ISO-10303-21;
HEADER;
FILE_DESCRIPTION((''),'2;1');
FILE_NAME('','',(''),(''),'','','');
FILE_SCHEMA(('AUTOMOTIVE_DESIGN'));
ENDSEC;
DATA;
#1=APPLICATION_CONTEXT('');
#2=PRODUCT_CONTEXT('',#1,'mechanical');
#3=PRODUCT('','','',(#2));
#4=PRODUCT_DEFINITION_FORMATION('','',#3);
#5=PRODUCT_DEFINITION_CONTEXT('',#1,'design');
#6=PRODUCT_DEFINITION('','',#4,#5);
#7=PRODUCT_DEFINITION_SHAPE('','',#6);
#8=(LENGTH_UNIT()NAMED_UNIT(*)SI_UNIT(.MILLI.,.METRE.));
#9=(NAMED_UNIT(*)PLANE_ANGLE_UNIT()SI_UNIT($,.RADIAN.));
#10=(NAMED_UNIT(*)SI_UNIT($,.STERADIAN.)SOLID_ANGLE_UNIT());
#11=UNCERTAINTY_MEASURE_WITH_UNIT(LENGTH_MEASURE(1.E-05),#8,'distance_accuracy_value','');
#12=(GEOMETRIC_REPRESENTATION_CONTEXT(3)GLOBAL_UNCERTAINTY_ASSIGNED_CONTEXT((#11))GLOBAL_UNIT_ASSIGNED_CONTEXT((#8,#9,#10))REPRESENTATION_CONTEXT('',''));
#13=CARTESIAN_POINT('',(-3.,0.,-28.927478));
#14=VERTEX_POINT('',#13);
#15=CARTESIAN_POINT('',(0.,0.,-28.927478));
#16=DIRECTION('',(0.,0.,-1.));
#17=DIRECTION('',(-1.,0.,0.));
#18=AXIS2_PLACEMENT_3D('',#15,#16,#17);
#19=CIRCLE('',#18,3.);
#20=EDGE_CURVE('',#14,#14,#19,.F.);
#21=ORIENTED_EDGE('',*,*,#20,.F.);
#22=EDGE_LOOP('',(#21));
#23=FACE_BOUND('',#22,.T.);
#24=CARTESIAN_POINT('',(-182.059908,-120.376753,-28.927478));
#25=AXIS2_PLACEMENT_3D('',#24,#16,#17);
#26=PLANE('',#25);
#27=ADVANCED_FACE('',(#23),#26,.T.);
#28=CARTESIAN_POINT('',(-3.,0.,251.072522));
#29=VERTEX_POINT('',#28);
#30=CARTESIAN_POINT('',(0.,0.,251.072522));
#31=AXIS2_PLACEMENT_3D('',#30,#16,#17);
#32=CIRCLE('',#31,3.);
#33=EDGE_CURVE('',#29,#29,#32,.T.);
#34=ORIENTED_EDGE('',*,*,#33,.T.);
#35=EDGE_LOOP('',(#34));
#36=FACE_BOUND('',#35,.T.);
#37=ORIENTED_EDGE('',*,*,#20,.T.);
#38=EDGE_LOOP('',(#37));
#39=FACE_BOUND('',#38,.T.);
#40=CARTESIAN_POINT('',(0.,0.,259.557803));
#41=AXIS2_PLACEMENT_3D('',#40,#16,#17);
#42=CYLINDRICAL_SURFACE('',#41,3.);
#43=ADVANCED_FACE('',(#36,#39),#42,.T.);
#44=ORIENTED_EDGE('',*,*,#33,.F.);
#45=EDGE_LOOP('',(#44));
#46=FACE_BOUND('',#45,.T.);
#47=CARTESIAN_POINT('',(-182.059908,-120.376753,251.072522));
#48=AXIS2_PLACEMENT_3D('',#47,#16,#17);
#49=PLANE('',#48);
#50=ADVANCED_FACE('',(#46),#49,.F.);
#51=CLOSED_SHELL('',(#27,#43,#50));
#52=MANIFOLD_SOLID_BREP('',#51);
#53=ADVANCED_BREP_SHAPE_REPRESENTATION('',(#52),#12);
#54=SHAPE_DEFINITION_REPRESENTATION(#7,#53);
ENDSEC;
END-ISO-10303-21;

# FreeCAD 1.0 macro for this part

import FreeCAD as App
import Part
import Sketcher
from FreeCAD import Vector

doc = App.newDocument("Part")
body = doc.addObject("PartDesign::Body", "Body")

# Sketch on XY plane
sketch1 = doc.addObject("Sketcher::SketchObject", "Sketch")
body.addObject(sketch1)
sketch1.AttachmentSupport = (doc.XY_Plane, [""])
sketch1.MapMode = "FlatFace"
sketch1.addGeometry(Part.Circle(Vector(0, 0, 0), Vector(0, 0, 1), 3), False)
sketch1.addConstraint(Sketcher.Constraint("Coincident", 0, 3, -1, 1))
sketch1.addConstraint(Sketcher.Constraint("Diameter", 0, 6.0))
pad1 = doc.addObject("PartDesign::Pad", "Pad")
body.addObject(pad1)
pad1.Profile = sketch1
pad1.Type = "TwoLengths"
pad1.Length = 251.072522
pad1.Length2 = 28.927478

doc.recompute()
